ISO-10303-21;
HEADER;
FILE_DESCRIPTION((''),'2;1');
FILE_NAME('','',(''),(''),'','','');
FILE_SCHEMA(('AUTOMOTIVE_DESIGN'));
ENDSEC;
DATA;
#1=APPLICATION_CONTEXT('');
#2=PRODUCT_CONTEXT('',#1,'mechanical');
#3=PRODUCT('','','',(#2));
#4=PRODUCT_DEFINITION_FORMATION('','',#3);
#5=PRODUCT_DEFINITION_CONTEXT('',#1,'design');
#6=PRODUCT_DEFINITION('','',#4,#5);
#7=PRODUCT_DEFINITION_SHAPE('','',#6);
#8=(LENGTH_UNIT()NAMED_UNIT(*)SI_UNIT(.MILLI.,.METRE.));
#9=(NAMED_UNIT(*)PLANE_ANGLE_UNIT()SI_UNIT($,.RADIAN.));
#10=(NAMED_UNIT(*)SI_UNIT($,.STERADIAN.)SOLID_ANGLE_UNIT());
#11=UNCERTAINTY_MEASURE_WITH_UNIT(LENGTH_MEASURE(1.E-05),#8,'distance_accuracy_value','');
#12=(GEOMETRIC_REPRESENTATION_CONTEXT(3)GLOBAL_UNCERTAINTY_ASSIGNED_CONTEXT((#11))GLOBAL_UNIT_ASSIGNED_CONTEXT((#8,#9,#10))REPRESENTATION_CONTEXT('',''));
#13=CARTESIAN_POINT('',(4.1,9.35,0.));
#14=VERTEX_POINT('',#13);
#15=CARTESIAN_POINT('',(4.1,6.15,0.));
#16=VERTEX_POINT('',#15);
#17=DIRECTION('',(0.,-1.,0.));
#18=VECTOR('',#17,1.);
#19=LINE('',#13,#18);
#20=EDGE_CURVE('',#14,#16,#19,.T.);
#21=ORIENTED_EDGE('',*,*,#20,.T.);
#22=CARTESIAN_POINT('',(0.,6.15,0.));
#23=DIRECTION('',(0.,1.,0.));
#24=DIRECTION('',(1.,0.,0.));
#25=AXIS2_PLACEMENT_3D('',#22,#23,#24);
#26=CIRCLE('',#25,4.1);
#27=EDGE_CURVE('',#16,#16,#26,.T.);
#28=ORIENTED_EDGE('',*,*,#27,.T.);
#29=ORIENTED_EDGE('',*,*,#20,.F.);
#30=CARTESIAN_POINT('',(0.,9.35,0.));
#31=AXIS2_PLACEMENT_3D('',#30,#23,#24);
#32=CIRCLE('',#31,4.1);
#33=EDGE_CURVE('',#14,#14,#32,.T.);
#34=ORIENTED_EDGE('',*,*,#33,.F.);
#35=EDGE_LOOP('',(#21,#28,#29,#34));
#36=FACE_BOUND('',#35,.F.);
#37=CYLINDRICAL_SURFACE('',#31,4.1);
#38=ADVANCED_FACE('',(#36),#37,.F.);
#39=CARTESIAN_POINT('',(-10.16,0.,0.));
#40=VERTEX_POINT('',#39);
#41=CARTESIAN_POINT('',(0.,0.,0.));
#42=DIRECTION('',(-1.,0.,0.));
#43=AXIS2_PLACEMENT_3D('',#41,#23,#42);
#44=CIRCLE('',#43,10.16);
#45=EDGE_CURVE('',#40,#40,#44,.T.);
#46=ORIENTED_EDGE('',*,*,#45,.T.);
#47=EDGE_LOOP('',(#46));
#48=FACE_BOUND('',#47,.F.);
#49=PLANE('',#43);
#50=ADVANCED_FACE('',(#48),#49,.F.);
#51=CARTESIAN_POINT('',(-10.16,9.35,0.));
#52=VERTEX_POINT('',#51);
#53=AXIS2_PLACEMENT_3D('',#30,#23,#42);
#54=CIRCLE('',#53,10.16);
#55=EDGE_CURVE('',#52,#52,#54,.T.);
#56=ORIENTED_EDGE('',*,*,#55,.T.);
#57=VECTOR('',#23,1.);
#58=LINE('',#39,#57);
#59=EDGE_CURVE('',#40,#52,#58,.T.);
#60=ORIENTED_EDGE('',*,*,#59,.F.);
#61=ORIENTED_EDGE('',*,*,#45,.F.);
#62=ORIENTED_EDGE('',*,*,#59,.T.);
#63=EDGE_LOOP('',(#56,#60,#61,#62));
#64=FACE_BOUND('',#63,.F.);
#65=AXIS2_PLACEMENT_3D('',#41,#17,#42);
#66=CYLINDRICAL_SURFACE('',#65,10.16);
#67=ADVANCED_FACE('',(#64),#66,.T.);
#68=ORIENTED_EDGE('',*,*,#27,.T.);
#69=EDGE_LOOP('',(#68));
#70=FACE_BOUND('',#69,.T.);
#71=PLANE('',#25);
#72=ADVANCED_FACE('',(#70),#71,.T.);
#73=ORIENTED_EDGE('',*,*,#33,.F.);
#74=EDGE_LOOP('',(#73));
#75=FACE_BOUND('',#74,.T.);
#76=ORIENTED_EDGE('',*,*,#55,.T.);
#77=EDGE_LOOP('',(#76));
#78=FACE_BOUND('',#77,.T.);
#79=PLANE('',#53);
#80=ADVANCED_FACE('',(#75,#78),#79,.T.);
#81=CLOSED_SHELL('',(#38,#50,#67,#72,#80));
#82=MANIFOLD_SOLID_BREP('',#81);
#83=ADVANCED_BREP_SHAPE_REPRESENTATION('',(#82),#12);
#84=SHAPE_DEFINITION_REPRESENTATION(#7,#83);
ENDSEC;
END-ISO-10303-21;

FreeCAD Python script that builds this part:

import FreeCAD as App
import Part
import Sketcher

V = App.Vector

doc = App.newDocument("Part")
params = doc.addObject("Spreadsheet::Sheet", "Params")
for row, (alias, value) in enumerate([
    ("sketch1_diameter", "20.32 mm"),
    ("pad1_length", "9.35 mm"),
    ("sketch2_diameter", "8.2 mm"),
    ("pocket1_length", "3.2 mm"),
], start=1):
    params.set(f"A{row}", alias)
    params.set(f"B{row}", "=" + value)
    params.setAlias(f"B{row}", alias)

body = doc.addObject("PartDesign::Body", "Body")

sketch1 = doc.addObject("Sketcher::SketchObject", "Sketch")
body.addObject(sketch1)
sketch1.AttachmentSupport = (doc.XZ_Plane, [""])
sketch1.MapMode = "FlatFace"
sketch1.addGeometry(Part.Circle(V(0, 0, 0), V(0, 0, 1), 10.16), False)
sketch1.addConstraint([
    Sketcher.Constraint("Coincident", 0, 3, -1, 1),
    Sketcher.Constraint("Diameter", 0, 20.32),
])
sketch1.setExpression("Constraints[1]", "Params.sketch1_diameter")
pad1 = doc.addObject("PartDesign::Pad", "Pad")
body.addObject(pad1)
pad1.Profile = sketch1
pad1.setExpression("Length", "Params.pad1_length")
pad1.Reversed = True

sketch2 = doc.addObject("Sketcher::SketchObject", "Sketch001")
body.addObject(sketch2)
sketch2.AttachmentSupport = (doc.XZ_Plane, [""])
sketch2.MapMode = "FlatFace"
sketch2.AttachmentOffset = App.Placement(V(0, 0, -9.35), App.Rotation())
sketch2.addGeometry(Part.Circle(V(0, 0, 0), V(0, 0, 1), 4.1), False)
sketch2.addConstraint([
    Sketcher.Constraint("Coincident", 0, 3, -1, 1),
    Sketcher.Constraint("Diameter", 0, 8.2),
])
sketch2.setExpression("Constraints[1]", "Params.sketch2_diameter")
pocket1 = doc.addObject("PartDesign::Pocket", "Pocket")
body.addObject(pocket1)
pocket1.Profile = sketch2
pocket1.setExpression("Length", "Params.pocket1_length")
pocket1.Reversed = True

doc.recompute()
